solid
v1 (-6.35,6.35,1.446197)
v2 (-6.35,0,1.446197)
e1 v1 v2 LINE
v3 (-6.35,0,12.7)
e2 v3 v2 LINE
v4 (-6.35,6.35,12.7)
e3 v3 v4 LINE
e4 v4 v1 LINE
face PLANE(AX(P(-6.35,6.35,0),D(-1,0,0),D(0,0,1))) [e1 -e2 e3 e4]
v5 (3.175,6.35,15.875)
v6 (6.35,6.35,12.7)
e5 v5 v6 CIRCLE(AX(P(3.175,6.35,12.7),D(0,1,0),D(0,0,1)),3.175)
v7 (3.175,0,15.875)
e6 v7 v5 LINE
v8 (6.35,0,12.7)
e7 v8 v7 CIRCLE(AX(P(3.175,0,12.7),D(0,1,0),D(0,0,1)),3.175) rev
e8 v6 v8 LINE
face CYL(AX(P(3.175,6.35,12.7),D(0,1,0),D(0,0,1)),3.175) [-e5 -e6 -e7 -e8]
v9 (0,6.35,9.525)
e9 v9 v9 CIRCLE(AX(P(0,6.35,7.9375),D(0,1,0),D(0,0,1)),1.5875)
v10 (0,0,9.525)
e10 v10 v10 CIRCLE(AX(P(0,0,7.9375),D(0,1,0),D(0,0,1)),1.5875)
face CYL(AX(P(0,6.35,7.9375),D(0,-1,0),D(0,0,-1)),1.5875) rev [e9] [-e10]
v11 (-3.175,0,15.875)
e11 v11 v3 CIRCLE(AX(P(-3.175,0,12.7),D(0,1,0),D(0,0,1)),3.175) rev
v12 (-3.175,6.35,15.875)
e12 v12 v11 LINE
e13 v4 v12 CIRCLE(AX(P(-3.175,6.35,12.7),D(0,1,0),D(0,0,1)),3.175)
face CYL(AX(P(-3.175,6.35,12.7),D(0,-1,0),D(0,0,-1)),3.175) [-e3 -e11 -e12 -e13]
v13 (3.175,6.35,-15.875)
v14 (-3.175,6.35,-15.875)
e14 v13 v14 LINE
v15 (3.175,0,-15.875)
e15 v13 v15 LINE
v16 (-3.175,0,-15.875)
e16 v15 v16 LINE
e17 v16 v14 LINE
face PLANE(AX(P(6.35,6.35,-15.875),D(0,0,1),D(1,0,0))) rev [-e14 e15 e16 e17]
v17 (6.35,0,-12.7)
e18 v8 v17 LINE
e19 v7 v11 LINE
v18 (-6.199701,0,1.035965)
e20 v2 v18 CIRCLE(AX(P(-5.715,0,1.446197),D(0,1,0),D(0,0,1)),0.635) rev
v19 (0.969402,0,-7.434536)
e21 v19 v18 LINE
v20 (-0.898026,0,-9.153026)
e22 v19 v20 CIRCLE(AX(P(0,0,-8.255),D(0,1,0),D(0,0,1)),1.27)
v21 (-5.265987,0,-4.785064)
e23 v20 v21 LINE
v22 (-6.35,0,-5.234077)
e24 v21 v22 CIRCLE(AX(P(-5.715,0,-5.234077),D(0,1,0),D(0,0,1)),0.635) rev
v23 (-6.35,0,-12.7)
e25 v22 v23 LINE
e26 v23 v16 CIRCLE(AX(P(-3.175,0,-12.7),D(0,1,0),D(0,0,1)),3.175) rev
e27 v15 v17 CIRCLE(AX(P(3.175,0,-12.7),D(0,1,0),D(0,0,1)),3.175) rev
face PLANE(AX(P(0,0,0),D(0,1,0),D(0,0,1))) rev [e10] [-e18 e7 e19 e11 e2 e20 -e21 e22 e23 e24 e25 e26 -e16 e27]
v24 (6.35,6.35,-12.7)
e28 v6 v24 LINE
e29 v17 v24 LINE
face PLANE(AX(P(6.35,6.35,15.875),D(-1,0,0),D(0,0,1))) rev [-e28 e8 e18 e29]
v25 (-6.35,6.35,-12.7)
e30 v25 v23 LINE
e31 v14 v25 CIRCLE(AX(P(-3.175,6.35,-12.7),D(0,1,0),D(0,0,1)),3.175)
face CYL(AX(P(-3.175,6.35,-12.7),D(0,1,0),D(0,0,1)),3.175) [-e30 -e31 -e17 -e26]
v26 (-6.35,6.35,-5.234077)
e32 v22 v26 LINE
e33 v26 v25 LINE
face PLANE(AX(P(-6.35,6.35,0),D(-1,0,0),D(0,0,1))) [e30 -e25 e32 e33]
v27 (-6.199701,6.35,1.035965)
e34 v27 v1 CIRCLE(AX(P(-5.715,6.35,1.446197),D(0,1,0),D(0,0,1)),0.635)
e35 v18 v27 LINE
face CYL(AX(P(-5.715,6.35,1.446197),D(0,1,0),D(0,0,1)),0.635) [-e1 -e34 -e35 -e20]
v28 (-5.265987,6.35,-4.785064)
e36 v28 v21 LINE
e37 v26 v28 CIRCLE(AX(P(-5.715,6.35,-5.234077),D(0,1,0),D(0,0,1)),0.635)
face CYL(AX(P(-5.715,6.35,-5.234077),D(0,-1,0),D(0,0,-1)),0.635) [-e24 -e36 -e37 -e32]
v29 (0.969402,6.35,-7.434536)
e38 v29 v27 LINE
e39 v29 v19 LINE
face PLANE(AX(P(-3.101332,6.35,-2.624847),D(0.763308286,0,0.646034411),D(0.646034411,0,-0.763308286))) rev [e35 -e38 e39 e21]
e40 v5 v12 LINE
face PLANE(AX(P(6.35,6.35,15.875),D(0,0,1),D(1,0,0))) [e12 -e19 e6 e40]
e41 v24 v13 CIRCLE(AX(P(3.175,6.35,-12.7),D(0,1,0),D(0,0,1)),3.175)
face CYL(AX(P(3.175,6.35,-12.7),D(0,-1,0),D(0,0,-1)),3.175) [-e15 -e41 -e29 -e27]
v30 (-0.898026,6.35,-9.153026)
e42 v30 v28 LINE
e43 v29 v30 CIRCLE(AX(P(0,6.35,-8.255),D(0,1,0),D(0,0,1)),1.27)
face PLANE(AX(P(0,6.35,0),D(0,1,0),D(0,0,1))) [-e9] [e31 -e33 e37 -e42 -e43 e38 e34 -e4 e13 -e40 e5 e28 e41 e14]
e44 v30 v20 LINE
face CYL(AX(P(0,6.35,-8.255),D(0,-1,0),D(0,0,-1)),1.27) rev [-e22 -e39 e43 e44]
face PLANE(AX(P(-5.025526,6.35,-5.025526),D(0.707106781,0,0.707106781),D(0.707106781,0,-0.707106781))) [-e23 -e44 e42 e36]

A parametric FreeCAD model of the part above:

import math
import FreeCAD as App
import Part
import Sketcher

V = App.Vector
Q = App.Units.Quantity


def edges_at(feature, points):
    """Names of the edges that pass closest to the given points."""
    edges = feature.Shape.Edges
    near = lambda p: min(range(len(edges)), key=lambda i: edges[i].distToShape(Part.Vertex(*p))[0])
    return sorted({f"Edge{near(p) + 1}" for p in points})

doc = App.newDocument("Part")
body = doc.addObject("PartDesign::Body", "Body")

sketch1 = body.newObject("Sketcher::SketchObject", "Sketch")
sketch1.AttachmentSupport = (doc.getObject("XZ_Plane"), [""])
sketch1.MapMode = "FlatFace"
sketch1.addGeometry([
    Part.LineSegment(V(-6.3, -15.9, 0), V(-6.3, 15.9, 0)),
    Part.LineSegment(V(-6.3, 15.9, 0), V(6.3, 15.9, 0)),
    Part.LineSegment(V(6.3, 15.9, 0), V(6.3, -15.9, 0)),
    Part.LineSegment(V(6.3, -15.9, 0), V(-6.3, -15.9, 0)),
    Part.Circle(V(0, 7.9, 0), V(0, 0, 1), 1.6),
], False)
sketch1.addConstraint([
    Sketcher.Constraint("Coincident", 0, 2, 1, 1),
    Sketcher.Constraint("Coincident", 1, 2, 2, 1),
    Sketcher.Constraint("Coincident", 2, 2, 3, 1),
    Sketcher.Constraint("Coincident", 3, 2, 0, 1),
    Sketcher.Constraint("Vertical", 0),
    Sketcher.Constraint("Horizontal", 1),
    Sketcher.Constraint("Vertical", 2),
    Sketcher.Constraint("Horizontal", 3),
    Sketcher.Constraint("Symmetric", 0, 2, 2, 2, -1, 1),
    Sketcher.Constraint("PointOnObject", 4, 3, -2),
    Sketcher.Constraint("Diameter", 4, Q("0.125 in")),
    Sketcher.Constraint("DistanceX", 1, 1, 1, 2, Q("0.5 in")),
    Sketcher.Constraint("DistanceY", 0, 1, 0, 2, Q("1.25 in")),
    Sketcher.Constraint("DistanceY", -1, 1, 4, 3, Q("0.3125 in")),
])
pad1 = body.newObject("PartDesign::Pad", "Pad")
pad1.Profile = sketch1
pad1.Length = Q("0.25 in")
pad1.Reversed = True

sketch2 = body.newObject("Sketcher::SketchObject", "Sketch001")
sketch2.AttachmentSupport = (doc.getObject("XZ_Plane"), [""])
sketch2.MapMode = "FlatFace"
sketch2.addGeometry([
    Part.LineSegment(V(-6.3, -3.7, 0), V(-6.3, 1.2, 0)),
    Part.LineSegment(V(-6.3, 1.2, 0), V(1, -7.4, 0)),
    Part.ArcOfCircle(Part.Circle(V(0, -8.3, 0), V(0, 0, 1), 1.3), math.radians(-135), math.radians(40)),
    Part.LineSegment(V(-0.9, -9.2, 0), V(-6.3, -3.7, 0)),
], False)
sketch2.addConstraint([
    Sketcher.Constraint("Coincident", 0, 2, 1, 1),
    Sketcher.Constraint("Tangent", 1, 2, 2, 2),
    Sketcher.Constraint("Tangent", 2, 1, 3, 1),
    Sketcher.Constraint("Coincident", 3, 2, 0, 1),
    Sketcher.Constraint("Vertical", 0),
    Sketcher.Constraint("PointOnObject", 2, 3, -2),
    Sketcher.Constraint("Radius", 2, Q("0.05 in")),
    Sketcher.Constraint("Angle", 3, Q("135 deg")),
    Sketcher.Constraint("DistanceX", 0, 2, -1, 1, Q("0.25 in")),
    Sketcher.Constraint("DistanceY", 2, 3, -1, 1, Q("0.325 in")),
    Sketcher.Constraint("DistanceY", 0, 1, 0, 2, 4.914599),
])
pocket1 = body.newObject("PartDesign::Pocket", "Pocket")
pocket1.Profile = sketch2
pocket1.Type = "ThroughAll"
doc.recompute()

fillet = body.newObject("PartDesign::Fillet", "Fillet")
fillet.Base = (pocket1, edges_at(pocket1, [
    (6.35, 3.175, -15.875),
    (-6.35, 3.175, -15.875),
    (-6.35, 3.175, 15.875),
    (6.35, 3.175, 15.875),
]))
fillet.Radius = Q("0.125 in")
doc.recompute()

fillet2 = body.newObject("PartDesign::Fillet", "Fillet001")
fillet2.Base = (fillet, edges_at(fillet, [(-6.35, 3.175, 1.214), (-6.35, 3.175, -3.701)]))
fillet2.Radius = Q("0.025 in")

doc.recompute()
